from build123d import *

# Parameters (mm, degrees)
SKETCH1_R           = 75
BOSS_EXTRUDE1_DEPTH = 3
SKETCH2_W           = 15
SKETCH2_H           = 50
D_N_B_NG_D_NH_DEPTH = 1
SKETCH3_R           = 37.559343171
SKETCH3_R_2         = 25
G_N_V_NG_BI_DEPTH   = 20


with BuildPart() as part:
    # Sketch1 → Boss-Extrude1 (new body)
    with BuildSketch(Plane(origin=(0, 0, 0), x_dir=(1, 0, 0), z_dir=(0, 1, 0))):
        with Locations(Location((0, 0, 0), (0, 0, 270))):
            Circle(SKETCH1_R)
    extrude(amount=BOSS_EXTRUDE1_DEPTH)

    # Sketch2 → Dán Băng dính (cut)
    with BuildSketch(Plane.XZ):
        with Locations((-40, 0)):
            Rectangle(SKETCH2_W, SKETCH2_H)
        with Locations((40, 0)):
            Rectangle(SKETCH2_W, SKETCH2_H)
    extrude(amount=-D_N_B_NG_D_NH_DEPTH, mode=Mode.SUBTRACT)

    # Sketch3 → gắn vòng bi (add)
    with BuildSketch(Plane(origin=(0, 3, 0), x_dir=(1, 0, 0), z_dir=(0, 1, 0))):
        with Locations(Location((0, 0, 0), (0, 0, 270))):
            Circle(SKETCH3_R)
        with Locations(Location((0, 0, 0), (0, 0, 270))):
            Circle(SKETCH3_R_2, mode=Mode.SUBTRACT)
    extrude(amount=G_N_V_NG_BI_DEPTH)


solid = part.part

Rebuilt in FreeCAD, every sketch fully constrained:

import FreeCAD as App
import Part
import Sketcher

V = App.Vector


def add_polygon(sketch, points):
    """Adds a closed chain of lines whose ends are joined by coincident constraints."""
    first, n = sketch.GeometryCount, len(points)
    for a, b in zip(points, points[1:] + points[:1]):
        sketch.addGeometry(Part.LineSegment(App.Vector(*a, 0), App.Vector(*b, 0)), False)
    for i in range(n):
        sketch.addConstraint(Sketcher.Constraint("Coincident", first + i, 2, first + (i + 1) % n, 1))

doc = App.newDocument("Part")
body = doc.addObject("PartDesign::Body", "Body")

# Sketch on XZ plane
sketch1 = body.newObject("Sketcher::SketchObject", "Sketch")
sketch1.AttachmentSupport = (doc.getObject("XZ_Plane"), [""])
sketch1.MapMode = "FlatFace"
sketch1.addGeometry(Part.Circle(V(0, 0, 0), V(0, 0, 1), 75), False)
sketch1.addConstraint(Sketcher.Constraint("Coincident", 0, 3, -1, 1))
sketch1.addConstraint(Sketcher.Constraint("Diameter", 0, 150.0))
pad1 = body.newObject("PartDesign::Pad", "Pad")
pad1.Profile = sketch1
pad1.Length = 3
pad1.Reversed = True

# Sketch on XZ plane
sketch2 = body.newObject("Sketcher::SketchObject", "Sketch001")
sketch2.AttachmentSupport = (doc.getObject("XZ_Plane"), [""])
sketch2.MapMode = "FlatFace"
add_polygon(sketch2, [(-47.5, 25), (-47.5, -25), (-32.5, -25), (-32.5, 25)])  # lines 0-3
add_polygon(sketch2, [(32.5, 25), (32.5, -25), (47.5, -25), (47.5, 25)])  # lines 4-7
sketch2.addConstraint(Sketcher.Constraint("Vertical", 0))
sketch2.addConstraint(Sketcher.Constraint("Horizontal", 1))
sketch2.addConstraint(Sketcher.Constraint("Vertical", 2))
sketch2.addConstraint(Sketcher.Constraint("Horizontal", 3))
sketch2.addConstraint(Sketcher.Constraint("Vertical", 4))
sketch2.addConstraint(Sketcher.Constraint("Horizontal", 5))
sketch2.addConstraint(Sketcher.Constraint("Vertical", 6))
sketch2.addConstraint(Sketcher.Constraint("Horizontal", 7))
sketch2.addConstraint(Sketcher.Constraint("Symmetric", 2, 2, 4, 2, -1, 1))
sketch2.addConstraint(Sketcher.Constraint("Symmetric", 0, 2, 6, 2, -1, 1))
sketch2.addConstraint(Sketcher.Constraint("Horizontal", 1, 2, 4, 2))
sketch2.addConstraint(Sketcher.Constraint("DistanceX", 1, 1, 1, 2, 15.0))
sketch2.addConstraint(Sketcher.Constraint("DistanceY", 0, 2, 0, 1, 50.0))
sketch2.addConstraint(Sketcher.Constraint("DistanceX", 1, 2, 4, 2, 65.0))
pocket1 = body.newObject("PartDesign::Pocket", "Pocket")
pocket1.Profile = sketch2
pocket1.Length = 1

# Sketch on XZ plane
sketch3 = body.newObject("Sketcher::SketchObject", "Sketch002")
sketch3.AttachmentSupport = (doc.getObject("XZ_Plane"), [""])
sketch3.MapMode = "FlatFace"
sketch3.AttachmentOffset = App.Placement(V(0, 0, -3), App.Rotation())
sketch3.addGeometry(Part.Circle(V(0, 0, 0), V(0, 0, 1), 37.559343), False)
sketch3.addGeometry(Part.Circle(V(0, 0, 0), V(0, 0, 1), 25), False)
sketch3.addConstraint(Sketcher.Constraint("Coincident", 0, 3, -1, 1))
sketch3.addConstraint(Sketcher.Constraint("Coincident", 1, 3, -1, 1))
sketch3.addConstraint(Sketcher.Constraint("Diameter", 1, 50.0))
sketch3.addConstraint(Sketcher.Constraint("Diameter", 0, 75.118686))
pad2 = body.newObject("PartDesign::Pad", "Pad001")
pad2.Profile = sketch3
pad2.Length = 20
pad2.Reversed = True

doc.recompute()
